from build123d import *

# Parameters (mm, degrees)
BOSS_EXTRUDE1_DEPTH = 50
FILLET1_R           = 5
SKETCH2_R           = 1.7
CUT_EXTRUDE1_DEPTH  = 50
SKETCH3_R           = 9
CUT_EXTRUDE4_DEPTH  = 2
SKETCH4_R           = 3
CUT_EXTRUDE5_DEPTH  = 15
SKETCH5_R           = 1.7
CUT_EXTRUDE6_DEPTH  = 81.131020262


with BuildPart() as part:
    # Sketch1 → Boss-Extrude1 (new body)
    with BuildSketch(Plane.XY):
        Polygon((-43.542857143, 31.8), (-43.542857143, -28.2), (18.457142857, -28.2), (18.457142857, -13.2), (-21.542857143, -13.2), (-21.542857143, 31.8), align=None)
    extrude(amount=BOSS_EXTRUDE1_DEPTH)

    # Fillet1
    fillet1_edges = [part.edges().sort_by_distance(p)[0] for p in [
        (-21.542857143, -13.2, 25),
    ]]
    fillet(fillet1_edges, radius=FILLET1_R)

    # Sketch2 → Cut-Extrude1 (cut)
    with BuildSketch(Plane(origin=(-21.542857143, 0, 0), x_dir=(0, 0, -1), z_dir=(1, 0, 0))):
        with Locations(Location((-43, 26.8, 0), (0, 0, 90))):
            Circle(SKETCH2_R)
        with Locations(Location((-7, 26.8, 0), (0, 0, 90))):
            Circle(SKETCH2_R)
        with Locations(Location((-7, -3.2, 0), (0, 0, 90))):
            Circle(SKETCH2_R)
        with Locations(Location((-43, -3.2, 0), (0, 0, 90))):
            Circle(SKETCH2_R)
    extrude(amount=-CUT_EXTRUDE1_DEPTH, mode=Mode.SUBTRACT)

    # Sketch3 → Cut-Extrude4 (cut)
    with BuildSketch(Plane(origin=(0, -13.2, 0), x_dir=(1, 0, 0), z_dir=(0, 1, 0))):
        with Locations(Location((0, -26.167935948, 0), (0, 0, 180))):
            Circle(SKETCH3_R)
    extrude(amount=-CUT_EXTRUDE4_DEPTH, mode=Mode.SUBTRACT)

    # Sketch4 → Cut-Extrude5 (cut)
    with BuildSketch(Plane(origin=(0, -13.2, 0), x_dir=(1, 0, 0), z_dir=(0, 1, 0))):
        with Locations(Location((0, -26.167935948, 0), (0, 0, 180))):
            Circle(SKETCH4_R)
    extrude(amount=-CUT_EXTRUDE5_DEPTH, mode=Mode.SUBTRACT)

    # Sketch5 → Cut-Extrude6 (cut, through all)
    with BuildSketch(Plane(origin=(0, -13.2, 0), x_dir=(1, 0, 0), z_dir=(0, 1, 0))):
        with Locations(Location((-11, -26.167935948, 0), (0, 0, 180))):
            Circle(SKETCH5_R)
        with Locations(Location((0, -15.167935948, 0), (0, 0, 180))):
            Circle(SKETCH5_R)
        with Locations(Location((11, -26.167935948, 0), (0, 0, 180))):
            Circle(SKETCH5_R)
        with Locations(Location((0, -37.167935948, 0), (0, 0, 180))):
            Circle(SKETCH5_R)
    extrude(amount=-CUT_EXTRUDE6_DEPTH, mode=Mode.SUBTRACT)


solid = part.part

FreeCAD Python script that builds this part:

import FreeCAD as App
import Part
import Sketcher
from FreeCAD import Vector
Q = App.Units.Quantity


def edges_at(feature, points):
    """Names of the edges that pass closest to the given points."""
    edges = feature.Shape.Edges
    near = lambda p: min(range(len(edges)), key=lambda i: edges[i].distToShape(Part.Vertex(*p))[0])
    return sorted({f"Edge{near(p) + 1}" for p in points})

doc = App.newDocument("Part")
params = doc.addObject("Spreadsheet::Sheet", "Params")
for row, (alias, value) in enumerate([
    ("sketch1_width", "62 mm"),
    ("sketch1_width2", "40 mm"),
    ("sketch1_height", "60 mm"),
    ("sketch1_height2", "15 mm"),
    ("pad1_length", "50 mm"),
    ("fillet_radius", "5 mm"),
    ("sketch2_diameter", "3.4 mm"),
    ("pocket1_length", "50 mm"),
    ("sketch3_diameter", "18 mm"),
    ("pocket2_length", "2 mm"),
    ("sketch4_diameter", "6 mm"),
    ("pocket3_length", "15 mm"),
    ("sketch5_diameter", "3.4 mm"),
], start=1):
    params.set(f"A{row}", alias)
    params.set(f"B{row}", "=" + value)
    params.setAlias(f"B{row}", alias)

body = doc.addObject("PartDesign::Body", "Body")

sketch1 = doc.addObject("Sketcher::SketchObject", "Sketch")
body.addObject(sketch1)
sketch1.AttachmentSupport = (doc.XY_Plane, [""])
sketch1.MapMode = "FlatFace"
sketch1.addGeometry(Part.LineSegment(Vector(-43.542857, 31.8, 0), Vector(-43.542857, -28.2, 0)), False)
sketch1.addGeometry(Part.LineSegment(Vector(-43.542857, -28.2, 0), Vector(18.457143, -28.2, 0)), False)
sketch1.addGeometry(Part.LineSegment(Vector(18.457143, -28.2, 0), Vector(18.457143, -13.2, 0)), False)
sketch1.addGeometry(Part.LineSegment(Vector(18.457143, -13.2, 0), Vector(-21.542857, -13.2, 0)), False)
sketch1.addGeometry(Part.LineSegment(Vector(-21.542857, -13.2, 0), Vector(-21.542857, 31.8, 0)), False)
sketch1.addGeometry(Part.LineSegment(Vector(-21.542857, 31.8, 0), Vector(-43.542857, 31.8, 0)), False)
sketch1.addConstraint(Sketcher.Constraint("Coincident", 0, 2, 1, 1))
sketch1.addConstraint(Sketcher.Constraint("Coincident", 1, 2, 2, 1))
sketch1.addConstraint(Sketcher.Constraint("Coincident", 2, 2, 3, 1))
sketch1.addConstraint(Sketcher.Constraint("Coincident", 3, 2, 4, 1))
sketch1.addConstraint(Sketcher.Constraint("Coincident", 4, 2, 5, 1))
sketch1.addConstraint(Sketcher.Constraint("Coincident", 5, 2, 0, 1))
sketch1.addConstraint(Sketcher.Constraint("Vertical", 0))
sketch1.addConstraint(Sketcher.Constraint("Horizontal", 1))
sketch1.addConstraint(Sketcher.Constraint("Vertical", 2))
sketch1.addConstraint(Sketcher.Constraint("Horizontal", 3))
sketch1.addConstraint(Sketcher.Constraint("Vertical", 4))
sketch1.addConstraint(Sketcher.Constraint("Horizontal", 5))
sketch1.addConstraint(Sketcher.Constraint("DistanceX", 1, 1, 1, 2, Q("62 mm")))
sketch1.addConstraint(Sketcher.Constraint("DistanceX", 3, 2, 3, 1, Q("40 mm")))
sketch1.addConstraint(Sketcher.Constraint("DistanceY", 0, 2, 0, 1, Q("60 mm")))
sketch1.addConstraint(Sketcher.Constraint("DistanceY", 2, 1, 2, 2, Q("15 mm")))
sketch1.addConstraint(Sketcher.Constraint("DistanceY", 0, 2, -1, 1, Q("28.2 mm")))
sketch1.addConstraint(Sketcher.Constraint("DistanceX", 0, 2, -1, 1, Q("43.542857 mm")))
sketch1.setExpression("Constraints[12]", "Params.sketch1_width")
sketch1.setExpression("Constraints[13]", "Params.sketch1_width2")
sketch1.setExpression("Constraints[14]", "Params.sketch1_height")
sketch1.setExpression("Constraints[15]", "Params.sketch1_height2")
pad1 = doc.addObject("PartDesign::Pad", "Pad")
body.addObject(pad1)
pad1.Profile = sketch1
pad1.setExpression("Length", "Params.pad1_length")
doc.recompute()

fillet = doc.addObject("PartDesign::Fillet", "Fillet")
body.addObject(fillet)
fillet.Base = (pad1, edges_at(pad1, [(-21.543, -13.2, 25)]))
fillet.setExpression("Radius", "Params.fillet_radius")

sketch2 = doc.addObject("Sketcher::SketchObject", "Sketch001")
body.addObject(sketch2)
sketch2.AttachmentSupport = (doc.YZ_Plane, [""])
sketch2.MapMode = "FlatFace"
sketch2.AttachmentOffset = App.Placement(Vector(0, 0, -21.542857), App.Rotation())
sketch2.addGeometry(Part.Circle(Vector(26.8, 43, 0), Vector(0, 0, 1), 1.7), False)
sketch2.addGeometry(Part.Circle(Vector(26.8, 7, 0), Vector(0, 0, 1), 1.7), False)
sketch2.addGeometry(Part.Circle(Vector(-3.2, 7, 0), Vector(0, 0, 1), 1.7), False)
sketch2.addGeometry(Part.Circle(Vector(-3.2, 43, 0), Vector(0, 0, 1), 1.7), False)
sketch2.addConstraint(Sketcher.Constraint("Equal", 0, 1))
sketch2.addConstraint(Sketcher.Constraint("Equal", 1, 2))
sketch2.addConstraint(Sketcher.Constraint("Equal", 2, 3))
sketch2.addConstraint(Sketcher.Constraint("Horizontal", 1, 3, 2, 3))
sketch2.addConstraint(Sketcher.Constraint("Horizontal", 0, 3, 3, 3))
sketch2.addConstraint(Sketcher.Constraint("Vertical", 0, 3, 1, 3))
sketch2.addConstraint(Sketcher.Constraint("Vertical", 2, 3, 3, 3))
sketch2.addConstraint(Sketcher.Constraint("Diameter", 0, Q("3.4 mm")))
sketch2.addConstraint(Sketcher.Constraint("DistanceY", -1, 1, 0, 3, Q("43 mm")))
sketch2.addConstraint(Sketcher.Constraint("DistanceY", -1, 1, 1, 3, Q("7 mm")))
sketch2.addConstraint(Sketcher.Constraint("DistanceX", 2, 3, 1, 3, Q("30 mm")))
sketch2.addConstraint(Sketcher.Constraint("DistanceX", -1, 1, 0, 3, Q("26.8 mm")))
sketch2.setExpression("Constraints[7]", "Params.sketch2_diameter")
pocket1 = doc.addObject("PartDesign::Pocket", "Pocket")
body.addObject(pocket1)
pocket1.Profile = sketch2
pocket1.setExpression("Length", "Params.pocket1_length")

sketch3 = doc.addObject("Sketcher::SketchObject", "Sketch002")
body.addObject(sketch3)
sketch3.AttachmentSupport = (doc.XZ_Plane, [""])
sketch3.MapMode = "FlatFace"
sketch3.AttachmentOffset = App.Placement(Vector(0, 0, 13.2), App.Rotation())
sketch3.addGeometry(Part.Circle(Vector(0, 26.167936, 0), Vector(0, 0, 1), 9), False)
sketch3.addConstraint(Sketcher.Constraint("PointOnObject", 0, 3, -2))
sketch3.addConstraint(Sketcher.Constraint("Diameter", 0, Q("18 mm")))
sketch3.addConstraint(Sketcher.Constraint("DistanceY", -1, 1, 0, 3, Q("26.167936 mm")))
sketch3.setExpression("Constraints[1]", "Params.sketch3_diameter")
pocket2 = doc.addObject("PartDesign::Pocket", "Pocket001")
body.addObject(pocket2)
pocket2.Profile = sketch3
pocket2.setExpression("Length", "Params.pocket2_length")
pocket2.Reversed = True

sketch4 = doc.addObject("Sketcher::SketchObject", "Sketch003")
body.addObject(sketch4)
sketch4.AttachmentSupport = (doc.XZ_Plane, [""])
sketch4.MapMode = "FlatFace"
sketch4.AttachmentOffset = App.Placement(Vector(0, 0, 13.2), App.Rotation())
sketch4.addGeometry(Part.Circle(Vector(0, 26.167936, 0), Vector(0, 0, 1), 3), False)
sketch4.addConstraint(Sketcher.Constraint("PointOnObject", 0, 3, -2))
sketch4.addConstraint(Sketcher.Constraint("Diameter", 0, Q("6 mm")))
sketch4.addConstraint(Sketcher.Constraint("DistanceY", -1, 1, 0, 3, Q("26.167936 mm")))
sketch4.setExpression("Constraints[1]", "Params.sketch4_diameter")
pocket3 = doc.addObject("PartDesign::Pocket", "Pocket002")
body.addObject(pocket3)
pocket3.Profile = sketch4
pocket3.setExpression("Length", "Params.pocket3_length")
pocket3.Reversed = True

sketch5 = doc.addObject("Sketcher::SketchObject", "Sketch004")
body.addObject(sketch5)
sketch5.AttachmentSupport = (doc.XZ_Plane, [""])
sketch5.MapMode = "FlatFace"
sketch5.AttachmentOffset = App.Placement(Vector(0, 0, 13.2), App.Rotation())
sketch5.addGeometry(Part.Circle(Vector(-11, 26.167936, 0), Vector(0, 0, 1), 1.7), False)
sketch5.addGeometry(Part.Circle(Vector(0, 15.167936, 0), Vector(0, 0, 1), 1.7), False)
sketch5.addGeometry(Part.Circle(Vector(11, 26.167936, 0), Vector(0, 0, 1), 1.7), False)
sketch5.addGeometry(Part.Circle(Vector(0, 37.167936, 0), Vector(0, 0, 1), 1.7), False)
sketch5.addConstraint(Sketcher.Constraint("Equal", 0, 1))
sketch5.addConstraint(Sketcher.Constraint("Equal", 1, 2))
sketch5.addConstraint(Sketcher.Constraint("Equal", 2, 3))
sketch5.addConstraint(Sketcher.Constraint("Symmetric", 0, 3, 2, 3, -2))
sketch5.addConstraint(Sketcher.Constraint("PointOnObject", 1, 3, -2))
sketch5.addConstraint(Sketcher.Constraint("PointOnObject", 3, 3, -2))
sketch5.addConstraint(Sketcher.Constraint("Diameter", 0, Q("3.4 mm")))
sketch5.addConstraint(Sketcher.Constraint("DistanceX", 0, 3, -1, 1, Q("11 mm")))
sketch5.addConstraint(Sketcher.Constraint("DistanceY", 1, 3, 0, 3, Q("11 mm")))
sketch5.addConstraint(Sketcher.Constraint("DistanceY", 0, 3, 3, 3, Q("11 mm")))
sketch5.addConstraint(Sketcher.Constraint("DistanceY", -1, 1, 0, 3, Q("26.167936 mm")))
sketch5.setExpression("Constraints[6]", "Params.sketch5_diameter")
pocket4 = doc.addObject("PartDesign::Pocket", "Pocket003")
body.addObject(pocket4)
pocket4.Profile = sketch5
pocket4.Type = "ThroughAll"
pocket4.Reversed = True

doc.recompute()
